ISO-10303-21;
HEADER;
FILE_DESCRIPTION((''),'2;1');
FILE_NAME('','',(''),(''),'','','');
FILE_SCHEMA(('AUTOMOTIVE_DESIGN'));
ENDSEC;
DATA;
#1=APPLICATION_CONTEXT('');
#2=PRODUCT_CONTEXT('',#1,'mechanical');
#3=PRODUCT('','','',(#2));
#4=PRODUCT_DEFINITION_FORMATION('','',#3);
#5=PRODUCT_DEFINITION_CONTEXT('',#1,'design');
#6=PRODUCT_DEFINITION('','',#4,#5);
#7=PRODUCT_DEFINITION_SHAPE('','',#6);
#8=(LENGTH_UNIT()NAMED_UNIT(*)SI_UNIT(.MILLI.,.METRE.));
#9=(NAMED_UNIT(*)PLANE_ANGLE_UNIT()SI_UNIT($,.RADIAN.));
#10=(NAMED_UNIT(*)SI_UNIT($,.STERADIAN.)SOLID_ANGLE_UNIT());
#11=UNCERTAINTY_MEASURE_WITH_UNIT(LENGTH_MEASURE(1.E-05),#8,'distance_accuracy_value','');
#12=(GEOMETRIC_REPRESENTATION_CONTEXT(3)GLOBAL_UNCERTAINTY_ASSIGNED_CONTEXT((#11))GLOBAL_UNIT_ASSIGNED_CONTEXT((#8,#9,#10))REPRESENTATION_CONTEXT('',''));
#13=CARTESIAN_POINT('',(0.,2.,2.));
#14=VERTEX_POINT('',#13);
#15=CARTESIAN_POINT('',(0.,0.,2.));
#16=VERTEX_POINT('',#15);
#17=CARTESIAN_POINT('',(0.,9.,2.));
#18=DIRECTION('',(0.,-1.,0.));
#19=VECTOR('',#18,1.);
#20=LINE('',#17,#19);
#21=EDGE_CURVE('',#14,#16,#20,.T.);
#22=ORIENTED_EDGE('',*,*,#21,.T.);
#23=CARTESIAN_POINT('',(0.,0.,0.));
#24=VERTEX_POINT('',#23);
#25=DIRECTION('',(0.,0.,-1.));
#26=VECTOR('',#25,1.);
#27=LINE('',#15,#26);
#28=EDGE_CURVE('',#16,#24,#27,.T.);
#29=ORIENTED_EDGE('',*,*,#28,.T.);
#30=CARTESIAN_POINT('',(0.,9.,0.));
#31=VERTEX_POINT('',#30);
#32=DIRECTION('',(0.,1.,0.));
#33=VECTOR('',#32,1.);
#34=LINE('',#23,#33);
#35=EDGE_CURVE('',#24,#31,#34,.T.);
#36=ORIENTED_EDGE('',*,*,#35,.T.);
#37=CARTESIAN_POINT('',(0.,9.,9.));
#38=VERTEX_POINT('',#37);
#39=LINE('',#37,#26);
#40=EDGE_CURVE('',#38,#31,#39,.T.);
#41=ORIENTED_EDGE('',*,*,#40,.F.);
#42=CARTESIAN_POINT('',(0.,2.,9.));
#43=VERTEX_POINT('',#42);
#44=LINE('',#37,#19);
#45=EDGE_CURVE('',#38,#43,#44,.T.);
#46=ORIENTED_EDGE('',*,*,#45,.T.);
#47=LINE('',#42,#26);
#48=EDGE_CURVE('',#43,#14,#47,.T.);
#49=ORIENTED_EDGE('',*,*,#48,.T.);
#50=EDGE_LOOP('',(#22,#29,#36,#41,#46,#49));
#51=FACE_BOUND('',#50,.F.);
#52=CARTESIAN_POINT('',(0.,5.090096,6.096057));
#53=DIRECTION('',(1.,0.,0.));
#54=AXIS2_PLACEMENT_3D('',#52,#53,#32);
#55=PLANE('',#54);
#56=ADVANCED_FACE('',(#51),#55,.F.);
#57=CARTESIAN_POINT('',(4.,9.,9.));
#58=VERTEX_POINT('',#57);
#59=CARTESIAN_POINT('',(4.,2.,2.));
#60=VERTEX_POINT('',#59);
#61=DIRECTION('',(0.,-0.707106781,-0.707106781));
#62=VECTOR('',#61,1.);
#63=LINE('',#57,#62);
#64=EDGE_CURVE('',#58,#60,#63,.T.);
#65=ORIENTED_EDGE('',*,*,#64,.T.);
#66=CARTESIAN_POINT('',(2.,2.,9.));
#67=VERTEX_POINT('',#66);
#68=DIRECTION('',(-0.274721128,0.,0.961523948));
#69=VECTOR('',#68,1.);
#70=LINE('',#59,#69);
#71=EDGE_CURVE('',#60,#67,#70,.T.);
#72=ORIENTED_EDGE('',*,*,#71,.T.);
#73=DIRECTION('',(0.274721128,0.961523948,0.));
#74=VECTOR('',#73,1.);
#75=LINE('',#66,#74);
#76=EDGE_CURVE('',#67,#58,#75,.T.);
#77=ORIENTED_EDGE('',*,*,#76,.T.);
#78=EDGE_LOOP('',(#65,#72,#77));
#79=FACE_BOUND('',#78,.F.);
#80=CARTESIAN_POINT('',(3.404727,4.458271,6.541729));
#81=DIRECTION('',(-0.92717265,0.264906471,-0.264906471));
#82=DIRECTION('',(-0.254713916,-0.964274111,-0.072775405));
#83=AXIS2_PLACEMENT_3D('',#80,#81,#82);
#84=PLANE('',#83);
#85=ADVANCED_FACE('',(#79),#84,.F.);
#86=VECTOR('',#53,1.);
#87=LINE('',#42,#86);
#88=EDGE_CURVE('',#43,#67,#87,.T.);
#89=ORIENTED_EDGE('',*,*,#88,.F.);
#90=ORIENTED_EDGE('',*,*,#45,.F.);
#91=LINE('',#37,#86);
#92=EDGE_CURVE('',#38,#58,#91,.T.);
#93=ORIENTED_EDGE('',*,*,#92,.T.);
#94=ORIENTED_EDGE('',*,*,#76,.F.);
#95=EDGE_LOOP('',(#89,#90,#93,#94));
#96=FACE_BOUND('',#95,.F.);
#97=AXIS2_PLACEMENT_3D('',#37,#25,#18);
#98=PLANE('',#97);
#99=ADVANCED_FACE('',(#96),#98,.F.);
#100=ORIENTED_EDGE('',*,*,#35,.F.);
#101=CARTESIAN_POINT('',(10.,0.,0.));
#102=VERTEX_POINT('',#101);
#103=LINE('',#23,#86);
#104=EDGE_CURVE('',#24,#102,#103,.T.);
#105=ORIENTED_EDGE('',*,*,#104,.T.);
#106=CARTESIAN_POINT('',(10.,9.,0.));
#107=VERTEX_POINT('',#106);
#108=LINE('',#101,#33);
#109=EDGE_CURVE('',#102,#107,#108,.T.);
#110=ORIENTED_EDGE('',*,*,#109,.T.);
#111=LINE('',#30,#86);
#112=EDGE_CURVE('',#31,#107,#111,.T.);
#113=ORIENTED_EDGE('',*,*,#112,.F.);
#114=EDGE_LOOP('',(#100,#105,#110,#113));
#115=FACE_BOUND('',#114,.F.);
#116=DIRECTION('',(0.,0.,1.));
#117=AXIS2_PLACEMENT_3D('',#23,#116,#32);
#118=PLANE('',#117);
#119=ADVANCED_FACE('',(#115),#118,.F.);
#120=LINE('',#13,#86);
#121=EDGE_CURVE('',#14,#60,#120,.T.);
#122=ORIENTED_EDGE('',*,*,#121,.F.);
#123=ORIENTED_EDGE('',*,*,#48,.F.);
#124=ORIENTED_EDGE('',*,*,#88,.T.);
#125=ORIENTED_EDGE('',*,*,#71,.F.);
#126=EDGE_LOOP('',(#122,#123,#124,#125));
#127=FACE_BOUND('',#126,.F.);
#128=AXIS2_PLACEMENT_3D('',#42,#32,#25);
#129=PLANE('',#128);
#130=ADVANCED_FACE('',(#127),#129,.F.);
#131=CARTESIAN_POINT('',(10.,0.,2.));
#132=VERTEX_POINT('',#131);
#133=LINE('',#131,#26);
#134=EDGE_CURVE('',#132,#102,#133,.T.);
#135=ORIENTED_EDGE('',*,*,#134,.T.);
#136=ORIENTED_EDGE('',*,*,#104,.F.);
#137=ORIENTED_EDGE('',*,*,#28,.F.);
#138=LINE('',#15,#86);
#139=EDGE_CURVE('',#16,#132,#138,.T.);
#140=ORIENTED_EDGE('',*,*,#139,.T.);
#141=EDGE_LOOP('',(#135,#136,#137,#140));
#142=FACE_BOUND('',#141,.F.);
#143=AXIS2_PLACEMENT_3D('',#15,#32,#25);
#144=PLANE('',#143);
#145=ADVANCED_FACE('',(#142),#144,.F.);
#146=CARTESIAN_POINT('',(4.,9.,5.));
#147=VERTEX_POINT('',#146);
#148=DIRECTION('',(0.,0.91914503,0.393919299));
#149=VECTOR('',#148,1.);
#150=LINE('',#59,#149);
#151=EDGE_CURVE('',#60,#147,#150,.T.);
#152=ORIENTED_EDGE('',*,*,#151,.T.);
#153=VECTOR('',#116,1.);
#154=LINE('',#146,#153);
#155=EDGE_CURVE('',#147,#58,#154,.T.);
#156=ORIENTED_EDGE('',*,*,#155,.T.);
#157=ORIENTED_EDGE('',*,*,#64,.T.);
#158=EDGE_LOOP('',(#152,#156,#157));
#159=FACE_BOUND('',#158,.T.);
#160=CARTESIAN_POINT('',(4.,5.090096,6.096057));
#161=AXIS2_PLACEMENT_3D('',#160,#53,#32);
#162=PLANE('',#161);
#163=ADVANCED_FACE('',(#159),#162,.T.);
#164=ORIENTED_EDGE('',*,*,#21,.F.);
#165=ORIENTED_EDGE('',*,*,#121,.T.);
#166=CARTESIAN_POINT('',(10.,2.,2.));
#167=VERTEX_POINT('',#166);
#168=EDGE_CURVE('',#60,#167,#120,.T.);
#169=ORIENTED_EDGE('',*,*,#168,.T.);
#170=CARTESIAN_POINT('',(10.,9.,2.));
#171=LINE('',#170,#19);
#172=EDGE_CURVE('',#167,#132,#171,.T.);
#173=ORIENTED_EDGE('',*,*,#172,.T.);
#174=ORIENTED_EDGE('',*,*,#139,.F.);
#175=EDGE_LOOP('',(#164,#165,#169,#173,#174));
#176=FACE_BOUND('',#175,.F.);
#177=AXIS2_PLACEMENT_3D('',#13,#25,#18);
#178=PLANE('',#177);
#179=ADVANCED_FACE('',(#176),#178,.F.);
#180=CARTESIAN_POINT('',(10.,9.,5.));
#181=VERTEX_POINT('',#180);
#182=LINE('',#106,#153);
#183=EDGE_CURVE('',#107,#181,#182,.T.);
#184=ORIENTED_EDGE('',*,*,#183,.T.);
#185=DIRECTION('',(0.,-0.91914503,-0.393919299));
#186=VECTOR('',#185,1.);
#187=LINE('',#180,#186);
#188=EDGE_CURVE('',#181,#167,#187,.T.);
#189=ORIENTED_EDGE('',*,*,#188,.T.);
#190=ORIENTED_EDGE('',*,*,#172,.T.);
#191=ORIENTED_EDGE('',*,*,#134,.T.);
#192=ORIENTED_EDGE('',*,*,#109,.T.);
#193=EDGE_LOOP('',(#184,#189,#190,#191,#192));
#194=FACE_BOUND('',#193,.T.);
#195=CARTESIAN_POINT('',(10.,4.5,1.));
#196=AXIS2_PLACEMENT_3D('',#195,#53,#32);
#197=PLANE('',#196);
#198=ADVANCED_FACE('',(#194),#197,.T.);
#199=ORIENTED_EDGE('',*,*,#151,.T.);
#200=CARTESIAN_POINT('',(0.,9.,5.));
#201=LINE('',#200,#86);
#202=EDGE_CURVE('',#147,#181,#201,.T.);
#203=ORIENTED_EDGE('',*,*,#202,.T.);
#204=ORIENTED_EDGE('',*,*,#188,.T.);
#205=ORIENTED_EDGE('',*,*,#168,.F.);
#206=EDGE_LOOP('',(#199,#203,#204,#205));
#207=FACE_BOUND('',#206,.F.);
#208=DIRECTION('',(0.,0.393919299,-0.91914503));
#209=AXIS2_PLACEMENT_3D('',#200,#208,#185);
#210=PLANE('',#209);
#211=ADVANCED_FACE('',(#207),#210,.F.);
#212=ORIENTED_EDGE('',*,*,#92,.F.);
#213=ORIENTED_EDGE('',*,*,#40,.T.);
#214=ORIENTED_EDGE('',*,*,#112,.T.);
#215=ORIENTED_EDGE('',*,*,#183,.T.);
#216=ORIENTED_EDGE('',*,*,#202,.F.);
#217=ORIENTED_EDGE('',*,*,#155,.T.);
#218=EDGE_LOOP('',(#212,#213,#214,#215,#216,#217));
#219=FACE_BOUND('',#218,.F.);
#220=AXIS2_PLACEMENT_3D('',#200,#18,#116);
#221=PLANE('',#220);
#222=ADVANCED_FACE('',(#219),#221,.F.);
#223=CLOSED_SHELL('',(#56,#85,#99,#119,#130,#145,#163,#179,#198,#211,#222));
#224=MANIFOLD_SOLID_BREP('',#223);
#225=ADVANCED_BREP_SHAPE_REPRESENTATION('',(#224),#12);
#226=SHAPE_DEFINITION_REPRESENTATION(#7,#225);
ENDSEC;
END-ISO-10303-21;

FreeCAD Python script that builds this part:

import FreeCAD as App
import Part
import Sketcher

V = App.Vector

doc = App.newDocument("Part")
body = doc.addObject("PartDesign::Body", "Body")

sketch1 = body.newObject("Sketcher::SketchObject", "Sketch")
sketch1.AttachmentSupport = (doc.getObject("YZ_Plane"), [""])
sketch1.MapMode = "FlatFace"
sketch1.addGeometry(Part.LineSegment(V(0, 2, 0), V(0, 0, 0)), False)
sketch1.addGeometry(Part.LineSegment(V(0, 0, 0), V(9, 0, 0)), False)
sketch1.addGeometry(Part.LineSegment(V(9, 0, 0), V(9, 5, 0)), False)
sketch1.addGeometry(Part.LineSegment(V(9, 5, 0), V(2, 2, 0)), False)
sketch1.addGeometry(Part.LineSegment(V(2, 2, 0), V(0, 2, 0)), False)
sketch1.addConstraint(Sketcher.Constraint("Coincident", 0, 2, 1, 1))
sketch1.addConstraint(Sketcher.Constraint("Coincident", 1, 2, 2, 1))
sketch1.addConstraint(Sketcher.Constraint("Coincident", 2, 2, 3, 1))
sketch1.addConstraint(Sketcher.Constraint("Coincident", 3, 2, 4, 1))
sketch1.addConstraint(Sketcher.Constraint("Coincident", 4, 2, 0, 1))
sketch1.addConstraint(Sketcher.Constraint("Vertical", 0))
sketch1.addConstraint(Sketcher.Constraint("Horizontal", 1))
sketch1.addConstraint(Sketcher.Constraint("Vertical", 2))
sketch1.addConstraint(Sketcher.Constraint("Horizontal", 4))
sketch1.addConstraint(Sketcher.Constraint("Coincident", 0, 2, -1, 1))
sketch1.addConstraint(Sketcher.Constraint("Equal", 4, 0))
sketch1.addConstraint(Sketcher.Constraint("DistanceX", 1, 1, 1, 2, 9.0))
sketch1.addConstraint(Sketcher.Constraint("DistanceX", 4, 2, 4, 1, 2.0))
sketch1.addConstraint(Sketcher.Constraint("DistanceY", 2, 1, 2, 2, 5.0))
pad1 = body.newObject("PartDesign::Pad", "Pad")
pad1.Profile = sketch1
pad1.Length = 10

sketch2 = body.newObject("Sketcher::SketchObject", "Sketch001")
sketch2.AttachmentSupport = (doc.getObject("YZ_Plane"), [""])
sketch2.MapMode = "FlatFace"
sketch2.addGeometry(Part.LineSegment(V(2, 9, 0), V(2, 2, 0)), False)
sketch2.addGeometry(Part.LineSegment(V(2, 2, 0), V(9, 5, 0)), False)
sketch2.addGeometry(Part.LineSegment(V(9, 5, 0), V(9, 9, 0)), False)
sketch2.addGeometry(Part.LineSegment(V(9, 9, 0), V(2, 9, 0)), False)
sketch2.addConstraint(Sketcher.Constraint("Coincident", 0, 2, 1, 1))
sketch2.addConstraint(Sketcher.Constraint("Coincident", 1, 2, 2, 1))
sketch2.addConstraint(Sketcher.Constraint("Coincident", 2, 2, 3, 1))
sketch2.addConstraint(Sketcher.Constraint("Coincident", 3, 2, 0, 1))
sketch2.addConstraint(Sketcher.Constraint("Vertical", 0))
sketch2.addConstraint(Sketcher.Constraint("Vertical", 2))
sketch2.addConstraint(Sketcher.Constraint("Horizontal", 3))
sketch2.addConstraint(Sketcher.Constraint("Equal", 3, 0))
sketch2.addConstraint(Sketcher.Constraint("DistanceX", 3, 2, 3, 1, 7.0))
sketch2.addConstraint(Sketcher.Constraint("DistanceY", 2, 1, 2, 2, 4.0))
sketch2.addConstraint(Sketcher.Constraint("DistanceX", -1, 1, 0, 2, 2.0))
sketch2.addConstraint(Sketcher.Constraint("DistanceY", -1, 1, 0, 2, 2.0))
pad2 = body.newObject("PartDesign::Pad", "Pad001")
pad2.Profile = sketch2
pad2.Length = 4

sketch3 = body.newObject("Sketcher::SketchObject", "Sketch002")
sketch3.Placement = App.Placement(V(3.438596, -0.982456, 0.982456), App.Rotation(V(-0.254713916, -0.964274111, -0.072775405), V(-0.274721128, -0.000000001, 0.961523947), V(-0.92717265, 0.264906471, -0.264906471), "ZXY"))
sketch3.addGeometry(Part.LineSegment(V(-3, 1, 0), V(-3, 8, 0)), False)
sketch3.addGeometry(Part.LineSegment(V(-3, 8, 0), V(-10, 8, 0)), False)
sketch3.addGeometry(Part.LineSegment(V(-10, 8, 0), V(-3, 1, 0)), False)
sketch3.addConstraint(Sketcher.Constraint("Coincident", 0, 2, 1, 1))
sketch3.addConstraint(Sketcher.Constraint("Coincident", 1, 2, 2, 1))
sketch3.addConstraint(Sketcher.Constraint("Coincident", 2, 2, 0, 1))
sketch3.addConstraint(Sketcher.Constraint("Vertical", 0))
sketch3.addConstraint(Sketcher.Constraint("DistanceY", 0, 1, 0, 2, 7.28011))
sketch3.addConstraint(Sketcher.Constraint("DistanceX", 1, 2, -1, 1, 10.352301))
sketch3.addConstraint(Sketcher.Constraint("Distance", 1, 7.28011))
sketch3.addConstraint(Sketcher.Constraint("DistanceY", -1, 1, 1, 2, 7.554831))
sketch3.addConstraint(Sketcher.Constraint("Distance", 2, 9.899495))
pocket1 = body.newObject("PartDesign::Pocket", "Pocket")
pocket1.Profile = sketch3
pocket1.Type = "ThroughAll"

doc.recompute()
